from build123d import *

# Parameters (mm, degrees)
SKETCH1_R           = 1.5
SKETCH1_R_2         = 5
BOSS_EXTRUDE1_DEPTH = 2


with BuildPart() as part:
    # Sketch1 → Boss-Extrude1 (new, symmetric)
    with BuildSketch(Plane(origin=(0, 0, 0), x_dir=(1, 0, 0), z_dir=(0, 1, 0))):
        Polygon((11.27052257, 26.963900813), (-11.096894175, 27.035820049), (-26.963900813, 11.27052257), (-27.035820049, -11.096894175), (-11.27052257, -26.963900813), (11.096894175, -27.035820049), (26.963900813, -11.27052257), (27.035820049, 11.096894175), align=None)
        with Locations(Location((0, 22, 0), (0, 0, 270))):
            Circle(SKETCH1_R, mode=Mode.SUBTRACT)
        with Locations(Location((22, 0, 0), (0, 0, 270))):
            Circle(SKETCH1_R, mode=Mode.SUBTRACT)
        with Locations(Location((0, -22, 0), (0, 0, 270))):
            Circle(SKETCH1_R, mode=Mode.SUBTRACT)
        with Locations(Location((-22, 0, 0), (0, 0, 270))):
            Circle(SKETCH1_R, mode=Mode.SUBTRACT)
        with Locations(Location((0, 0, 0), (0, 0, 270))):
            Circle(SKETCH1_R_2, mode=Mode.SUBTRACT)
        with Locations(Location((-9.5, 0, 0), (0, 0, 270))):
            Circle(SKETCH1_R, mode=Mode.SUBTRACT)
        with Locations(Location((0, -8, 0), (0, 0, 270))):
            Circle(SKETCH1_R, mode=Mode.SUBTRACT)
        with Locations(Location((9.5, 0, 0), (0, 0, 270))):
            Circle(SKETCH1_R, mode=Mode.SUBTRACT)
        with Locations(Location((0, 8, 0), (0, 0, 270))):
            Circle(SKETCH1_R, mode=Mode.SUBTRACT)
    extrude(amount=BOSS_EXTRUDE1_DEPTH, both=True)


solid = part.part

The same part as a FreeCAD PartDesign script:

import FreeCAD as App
import Part
import Sketcher

V = App.Vector
Q = App.Units.Quantity


def add_polygon(sketch, points):
    """Adds a closed chain of lines whose ends are joined by coincident constraints."""
    first, n = sketch.GeometryCount, len(points)
    for a, b in zip(points, points[1:] + points[:1]):
        sketch.addGeometry(Part.LineSegment(App.Vector(*a, 0), App.Vector(*b, 0)), False)
    for i in range(n):
        sketch.addConstraint(Sketcher.Constraint("Coincident", first + i, 2, first + (i + 1) % n, 1))

doc = App.newDocument("Part")
body = doc.addObject("PartDesign::Body", "Body")

sketch1 = body.newObject("Sketcher::SketchObject", "Sketch")
sketch1.AttachmentSupport = (doc.getObject("XZ_Plane"), [""])
sketch1.MapMode = "FlatFace"
add_polygon(sketch1, [(11.270523, -26.963901), (-11.096894, -27.03582), (-26.963901, -11.270523), (-27.03582, 11.096894), (-11.270523, 26.963901), (11.096894, 27.03582), (26.963901, 11.270523), (27.03582, -11.096894)])
sketch1.addGeometry(Part.Circle(V(0, 22, 0), V(0, 0, 1), 1.5), False)
sketch1.addGeometry(Part.Circle(V(0, 8, 0), V(0, 0, 1), 1.5), False)
sketch1.addGeometry(Part.Circle(V(-22, 0, 0), V(0, 0, 1), 1.5), False)
sketch1.addGeometry(Part.Circle(V(-9.5, 0, 0), V(0, 0, 1), 1.5), False)
sketch1.addGeometry(Part.Circle(V(0, 0, 0), V(0, 0, 1), 5), False)
sketch1.addGeometry(Part.Circle(V(9.5, 0, 0), V(0, 0, 1), 1.5), False)
sketch1.addGeometry(Part.Circle(V(0, -8, 0), V(0, 0, 1), 1.5), False)
sketch1.addGeometry(Part.Circle(V(22, 0, 0), V(0, 0, 1), 1.5), False)
sketch1.addGeometry(Part.Circle(V(0, -22, 0), V(0, 0, 1), 1.5), False)
sketch1.addConstraint(Sketcher.Constraint("Coincident", 12, 3, -1, 1))
sketch1.addConstraint(Sketcher.Constraint("Equal", 8, 9))
sketch1.addConstraint(Sketcher.Constraint("Equal", 9, 10))
sketch1.addConstraint(Sketcher.Constraint("Equal", 10, 11))
sketch1.addConstraint(Sketcher.Constraint("Equal", 11, 13))
sketch1.addConstraint(Sketcher.Constraint("Equal", 13, 14))
sketch1.addConstraint(Sketcher.Constraint("Equal", 14, 15))
sketch1.addConstraint(Sketcher.Constraint("Equal", 15, 16))
sketch1.addConstraint(Sketcher.Constraint("Symmetric", 11, 3, 13, 3, -1, 1))
sketch1.addConstraint(Sketcher.Constraint("Symmetric", 9, 3, 14, 3, -1, 1))
sketch1.addConstraint(Sketcher.Constraint("Symmetric", 10, 3, 15, 3, -1, 1))
sketch1.addConstraint(Sketcher.Constraint("Symmetric", 8, 3, 16, 3, -1, 1))
sketch1.addConstraint(Sketcher.Constraint("Symmetric", 0, 2, 4, 2, -1, 1))
sketch1.addConstraint(Sketcher.Constraint("Symmetric", 1, 2, 5, 2, -1, 1))
sketch1.addConstraint(Sketcher.Constraint("Symmetric", 2, 2, 6, 2, -1, 1))
sketch1.addConstraint(Sketcher.Constraint("Symmetric", 3, 2, 7, 2, -1, 1))
sketch1.addConstraint(Sketcher.Constraint("PointOnObject", 8, 3, -2))
sketch1.addConstraint(Sketcher.Constraint("PointOnObject", 9, 3, -2))
sketch1.addConstraint(Sketcher.Constraint("PointOnObject", 10, 3, -1))
sketch1.addConstraint(Sketcher.Constraint("PointOnObject", 11, 3, -1))
sketch1.addConstraint(Sketcher.Constraint("Perpendicular", 0, 2))
sketch1.addConstraint(Sketcher.Constraint("Perpendicular", 1, 3))
sketch1.addConstraint(Sketcher.Constraint("Equal", 0, 1))
sketch1.addConstraint(Sketcher.Constraint("Equal", 1, 2))
sketch1.addConstraint(Sketcher.Constraint("Equal", 2, 3))
sketch1.addConstraint(Sketcher.Constraint("Diameter", 8, Q("3 mm")))
sketch1.addConstraint(Sketcher.Constraint("Diameter", 12, Q("10 mm")))
sketch1.addConstraint(Sketcher.Constraint("DistanceY", -1, 1, 8, 3, Q("22 mm")))
sketch1.addConstraint(Sketcher.Constraint("DistanceY", -1, 1, 9, 3, Q("8 mm")))
sketch1.addConstraint(Sketcher.Constraint("DistanceX", 10, 3, -1, 1, Q("22 mm")))
sketch1.addConstraint(Sketcher.Constraint("DistanceX", 11, 3, 13, 3, Q("19 mm")))
sketch1.addConstraint(Sketcher.Constraint("DistanceX", 1, 2, -1, 1, Q("26.963901 mm")))
sketch1.addConstraint(Sketcher.Constraint("DistanceY", 0, 2, -1, 1, Q("27.03582 mm")))
sketch1.addConstraint(Sketcher.Constraint("DistanceX", 0, 2, -1, 1, Q("11.096894 mm")))
pad1 = body.newObject("PartDesign::Pad", "Pad")
pad1.Profile = sketch1
pad1.Length = 4
pad1.Midplane = True

doc.recompute()
